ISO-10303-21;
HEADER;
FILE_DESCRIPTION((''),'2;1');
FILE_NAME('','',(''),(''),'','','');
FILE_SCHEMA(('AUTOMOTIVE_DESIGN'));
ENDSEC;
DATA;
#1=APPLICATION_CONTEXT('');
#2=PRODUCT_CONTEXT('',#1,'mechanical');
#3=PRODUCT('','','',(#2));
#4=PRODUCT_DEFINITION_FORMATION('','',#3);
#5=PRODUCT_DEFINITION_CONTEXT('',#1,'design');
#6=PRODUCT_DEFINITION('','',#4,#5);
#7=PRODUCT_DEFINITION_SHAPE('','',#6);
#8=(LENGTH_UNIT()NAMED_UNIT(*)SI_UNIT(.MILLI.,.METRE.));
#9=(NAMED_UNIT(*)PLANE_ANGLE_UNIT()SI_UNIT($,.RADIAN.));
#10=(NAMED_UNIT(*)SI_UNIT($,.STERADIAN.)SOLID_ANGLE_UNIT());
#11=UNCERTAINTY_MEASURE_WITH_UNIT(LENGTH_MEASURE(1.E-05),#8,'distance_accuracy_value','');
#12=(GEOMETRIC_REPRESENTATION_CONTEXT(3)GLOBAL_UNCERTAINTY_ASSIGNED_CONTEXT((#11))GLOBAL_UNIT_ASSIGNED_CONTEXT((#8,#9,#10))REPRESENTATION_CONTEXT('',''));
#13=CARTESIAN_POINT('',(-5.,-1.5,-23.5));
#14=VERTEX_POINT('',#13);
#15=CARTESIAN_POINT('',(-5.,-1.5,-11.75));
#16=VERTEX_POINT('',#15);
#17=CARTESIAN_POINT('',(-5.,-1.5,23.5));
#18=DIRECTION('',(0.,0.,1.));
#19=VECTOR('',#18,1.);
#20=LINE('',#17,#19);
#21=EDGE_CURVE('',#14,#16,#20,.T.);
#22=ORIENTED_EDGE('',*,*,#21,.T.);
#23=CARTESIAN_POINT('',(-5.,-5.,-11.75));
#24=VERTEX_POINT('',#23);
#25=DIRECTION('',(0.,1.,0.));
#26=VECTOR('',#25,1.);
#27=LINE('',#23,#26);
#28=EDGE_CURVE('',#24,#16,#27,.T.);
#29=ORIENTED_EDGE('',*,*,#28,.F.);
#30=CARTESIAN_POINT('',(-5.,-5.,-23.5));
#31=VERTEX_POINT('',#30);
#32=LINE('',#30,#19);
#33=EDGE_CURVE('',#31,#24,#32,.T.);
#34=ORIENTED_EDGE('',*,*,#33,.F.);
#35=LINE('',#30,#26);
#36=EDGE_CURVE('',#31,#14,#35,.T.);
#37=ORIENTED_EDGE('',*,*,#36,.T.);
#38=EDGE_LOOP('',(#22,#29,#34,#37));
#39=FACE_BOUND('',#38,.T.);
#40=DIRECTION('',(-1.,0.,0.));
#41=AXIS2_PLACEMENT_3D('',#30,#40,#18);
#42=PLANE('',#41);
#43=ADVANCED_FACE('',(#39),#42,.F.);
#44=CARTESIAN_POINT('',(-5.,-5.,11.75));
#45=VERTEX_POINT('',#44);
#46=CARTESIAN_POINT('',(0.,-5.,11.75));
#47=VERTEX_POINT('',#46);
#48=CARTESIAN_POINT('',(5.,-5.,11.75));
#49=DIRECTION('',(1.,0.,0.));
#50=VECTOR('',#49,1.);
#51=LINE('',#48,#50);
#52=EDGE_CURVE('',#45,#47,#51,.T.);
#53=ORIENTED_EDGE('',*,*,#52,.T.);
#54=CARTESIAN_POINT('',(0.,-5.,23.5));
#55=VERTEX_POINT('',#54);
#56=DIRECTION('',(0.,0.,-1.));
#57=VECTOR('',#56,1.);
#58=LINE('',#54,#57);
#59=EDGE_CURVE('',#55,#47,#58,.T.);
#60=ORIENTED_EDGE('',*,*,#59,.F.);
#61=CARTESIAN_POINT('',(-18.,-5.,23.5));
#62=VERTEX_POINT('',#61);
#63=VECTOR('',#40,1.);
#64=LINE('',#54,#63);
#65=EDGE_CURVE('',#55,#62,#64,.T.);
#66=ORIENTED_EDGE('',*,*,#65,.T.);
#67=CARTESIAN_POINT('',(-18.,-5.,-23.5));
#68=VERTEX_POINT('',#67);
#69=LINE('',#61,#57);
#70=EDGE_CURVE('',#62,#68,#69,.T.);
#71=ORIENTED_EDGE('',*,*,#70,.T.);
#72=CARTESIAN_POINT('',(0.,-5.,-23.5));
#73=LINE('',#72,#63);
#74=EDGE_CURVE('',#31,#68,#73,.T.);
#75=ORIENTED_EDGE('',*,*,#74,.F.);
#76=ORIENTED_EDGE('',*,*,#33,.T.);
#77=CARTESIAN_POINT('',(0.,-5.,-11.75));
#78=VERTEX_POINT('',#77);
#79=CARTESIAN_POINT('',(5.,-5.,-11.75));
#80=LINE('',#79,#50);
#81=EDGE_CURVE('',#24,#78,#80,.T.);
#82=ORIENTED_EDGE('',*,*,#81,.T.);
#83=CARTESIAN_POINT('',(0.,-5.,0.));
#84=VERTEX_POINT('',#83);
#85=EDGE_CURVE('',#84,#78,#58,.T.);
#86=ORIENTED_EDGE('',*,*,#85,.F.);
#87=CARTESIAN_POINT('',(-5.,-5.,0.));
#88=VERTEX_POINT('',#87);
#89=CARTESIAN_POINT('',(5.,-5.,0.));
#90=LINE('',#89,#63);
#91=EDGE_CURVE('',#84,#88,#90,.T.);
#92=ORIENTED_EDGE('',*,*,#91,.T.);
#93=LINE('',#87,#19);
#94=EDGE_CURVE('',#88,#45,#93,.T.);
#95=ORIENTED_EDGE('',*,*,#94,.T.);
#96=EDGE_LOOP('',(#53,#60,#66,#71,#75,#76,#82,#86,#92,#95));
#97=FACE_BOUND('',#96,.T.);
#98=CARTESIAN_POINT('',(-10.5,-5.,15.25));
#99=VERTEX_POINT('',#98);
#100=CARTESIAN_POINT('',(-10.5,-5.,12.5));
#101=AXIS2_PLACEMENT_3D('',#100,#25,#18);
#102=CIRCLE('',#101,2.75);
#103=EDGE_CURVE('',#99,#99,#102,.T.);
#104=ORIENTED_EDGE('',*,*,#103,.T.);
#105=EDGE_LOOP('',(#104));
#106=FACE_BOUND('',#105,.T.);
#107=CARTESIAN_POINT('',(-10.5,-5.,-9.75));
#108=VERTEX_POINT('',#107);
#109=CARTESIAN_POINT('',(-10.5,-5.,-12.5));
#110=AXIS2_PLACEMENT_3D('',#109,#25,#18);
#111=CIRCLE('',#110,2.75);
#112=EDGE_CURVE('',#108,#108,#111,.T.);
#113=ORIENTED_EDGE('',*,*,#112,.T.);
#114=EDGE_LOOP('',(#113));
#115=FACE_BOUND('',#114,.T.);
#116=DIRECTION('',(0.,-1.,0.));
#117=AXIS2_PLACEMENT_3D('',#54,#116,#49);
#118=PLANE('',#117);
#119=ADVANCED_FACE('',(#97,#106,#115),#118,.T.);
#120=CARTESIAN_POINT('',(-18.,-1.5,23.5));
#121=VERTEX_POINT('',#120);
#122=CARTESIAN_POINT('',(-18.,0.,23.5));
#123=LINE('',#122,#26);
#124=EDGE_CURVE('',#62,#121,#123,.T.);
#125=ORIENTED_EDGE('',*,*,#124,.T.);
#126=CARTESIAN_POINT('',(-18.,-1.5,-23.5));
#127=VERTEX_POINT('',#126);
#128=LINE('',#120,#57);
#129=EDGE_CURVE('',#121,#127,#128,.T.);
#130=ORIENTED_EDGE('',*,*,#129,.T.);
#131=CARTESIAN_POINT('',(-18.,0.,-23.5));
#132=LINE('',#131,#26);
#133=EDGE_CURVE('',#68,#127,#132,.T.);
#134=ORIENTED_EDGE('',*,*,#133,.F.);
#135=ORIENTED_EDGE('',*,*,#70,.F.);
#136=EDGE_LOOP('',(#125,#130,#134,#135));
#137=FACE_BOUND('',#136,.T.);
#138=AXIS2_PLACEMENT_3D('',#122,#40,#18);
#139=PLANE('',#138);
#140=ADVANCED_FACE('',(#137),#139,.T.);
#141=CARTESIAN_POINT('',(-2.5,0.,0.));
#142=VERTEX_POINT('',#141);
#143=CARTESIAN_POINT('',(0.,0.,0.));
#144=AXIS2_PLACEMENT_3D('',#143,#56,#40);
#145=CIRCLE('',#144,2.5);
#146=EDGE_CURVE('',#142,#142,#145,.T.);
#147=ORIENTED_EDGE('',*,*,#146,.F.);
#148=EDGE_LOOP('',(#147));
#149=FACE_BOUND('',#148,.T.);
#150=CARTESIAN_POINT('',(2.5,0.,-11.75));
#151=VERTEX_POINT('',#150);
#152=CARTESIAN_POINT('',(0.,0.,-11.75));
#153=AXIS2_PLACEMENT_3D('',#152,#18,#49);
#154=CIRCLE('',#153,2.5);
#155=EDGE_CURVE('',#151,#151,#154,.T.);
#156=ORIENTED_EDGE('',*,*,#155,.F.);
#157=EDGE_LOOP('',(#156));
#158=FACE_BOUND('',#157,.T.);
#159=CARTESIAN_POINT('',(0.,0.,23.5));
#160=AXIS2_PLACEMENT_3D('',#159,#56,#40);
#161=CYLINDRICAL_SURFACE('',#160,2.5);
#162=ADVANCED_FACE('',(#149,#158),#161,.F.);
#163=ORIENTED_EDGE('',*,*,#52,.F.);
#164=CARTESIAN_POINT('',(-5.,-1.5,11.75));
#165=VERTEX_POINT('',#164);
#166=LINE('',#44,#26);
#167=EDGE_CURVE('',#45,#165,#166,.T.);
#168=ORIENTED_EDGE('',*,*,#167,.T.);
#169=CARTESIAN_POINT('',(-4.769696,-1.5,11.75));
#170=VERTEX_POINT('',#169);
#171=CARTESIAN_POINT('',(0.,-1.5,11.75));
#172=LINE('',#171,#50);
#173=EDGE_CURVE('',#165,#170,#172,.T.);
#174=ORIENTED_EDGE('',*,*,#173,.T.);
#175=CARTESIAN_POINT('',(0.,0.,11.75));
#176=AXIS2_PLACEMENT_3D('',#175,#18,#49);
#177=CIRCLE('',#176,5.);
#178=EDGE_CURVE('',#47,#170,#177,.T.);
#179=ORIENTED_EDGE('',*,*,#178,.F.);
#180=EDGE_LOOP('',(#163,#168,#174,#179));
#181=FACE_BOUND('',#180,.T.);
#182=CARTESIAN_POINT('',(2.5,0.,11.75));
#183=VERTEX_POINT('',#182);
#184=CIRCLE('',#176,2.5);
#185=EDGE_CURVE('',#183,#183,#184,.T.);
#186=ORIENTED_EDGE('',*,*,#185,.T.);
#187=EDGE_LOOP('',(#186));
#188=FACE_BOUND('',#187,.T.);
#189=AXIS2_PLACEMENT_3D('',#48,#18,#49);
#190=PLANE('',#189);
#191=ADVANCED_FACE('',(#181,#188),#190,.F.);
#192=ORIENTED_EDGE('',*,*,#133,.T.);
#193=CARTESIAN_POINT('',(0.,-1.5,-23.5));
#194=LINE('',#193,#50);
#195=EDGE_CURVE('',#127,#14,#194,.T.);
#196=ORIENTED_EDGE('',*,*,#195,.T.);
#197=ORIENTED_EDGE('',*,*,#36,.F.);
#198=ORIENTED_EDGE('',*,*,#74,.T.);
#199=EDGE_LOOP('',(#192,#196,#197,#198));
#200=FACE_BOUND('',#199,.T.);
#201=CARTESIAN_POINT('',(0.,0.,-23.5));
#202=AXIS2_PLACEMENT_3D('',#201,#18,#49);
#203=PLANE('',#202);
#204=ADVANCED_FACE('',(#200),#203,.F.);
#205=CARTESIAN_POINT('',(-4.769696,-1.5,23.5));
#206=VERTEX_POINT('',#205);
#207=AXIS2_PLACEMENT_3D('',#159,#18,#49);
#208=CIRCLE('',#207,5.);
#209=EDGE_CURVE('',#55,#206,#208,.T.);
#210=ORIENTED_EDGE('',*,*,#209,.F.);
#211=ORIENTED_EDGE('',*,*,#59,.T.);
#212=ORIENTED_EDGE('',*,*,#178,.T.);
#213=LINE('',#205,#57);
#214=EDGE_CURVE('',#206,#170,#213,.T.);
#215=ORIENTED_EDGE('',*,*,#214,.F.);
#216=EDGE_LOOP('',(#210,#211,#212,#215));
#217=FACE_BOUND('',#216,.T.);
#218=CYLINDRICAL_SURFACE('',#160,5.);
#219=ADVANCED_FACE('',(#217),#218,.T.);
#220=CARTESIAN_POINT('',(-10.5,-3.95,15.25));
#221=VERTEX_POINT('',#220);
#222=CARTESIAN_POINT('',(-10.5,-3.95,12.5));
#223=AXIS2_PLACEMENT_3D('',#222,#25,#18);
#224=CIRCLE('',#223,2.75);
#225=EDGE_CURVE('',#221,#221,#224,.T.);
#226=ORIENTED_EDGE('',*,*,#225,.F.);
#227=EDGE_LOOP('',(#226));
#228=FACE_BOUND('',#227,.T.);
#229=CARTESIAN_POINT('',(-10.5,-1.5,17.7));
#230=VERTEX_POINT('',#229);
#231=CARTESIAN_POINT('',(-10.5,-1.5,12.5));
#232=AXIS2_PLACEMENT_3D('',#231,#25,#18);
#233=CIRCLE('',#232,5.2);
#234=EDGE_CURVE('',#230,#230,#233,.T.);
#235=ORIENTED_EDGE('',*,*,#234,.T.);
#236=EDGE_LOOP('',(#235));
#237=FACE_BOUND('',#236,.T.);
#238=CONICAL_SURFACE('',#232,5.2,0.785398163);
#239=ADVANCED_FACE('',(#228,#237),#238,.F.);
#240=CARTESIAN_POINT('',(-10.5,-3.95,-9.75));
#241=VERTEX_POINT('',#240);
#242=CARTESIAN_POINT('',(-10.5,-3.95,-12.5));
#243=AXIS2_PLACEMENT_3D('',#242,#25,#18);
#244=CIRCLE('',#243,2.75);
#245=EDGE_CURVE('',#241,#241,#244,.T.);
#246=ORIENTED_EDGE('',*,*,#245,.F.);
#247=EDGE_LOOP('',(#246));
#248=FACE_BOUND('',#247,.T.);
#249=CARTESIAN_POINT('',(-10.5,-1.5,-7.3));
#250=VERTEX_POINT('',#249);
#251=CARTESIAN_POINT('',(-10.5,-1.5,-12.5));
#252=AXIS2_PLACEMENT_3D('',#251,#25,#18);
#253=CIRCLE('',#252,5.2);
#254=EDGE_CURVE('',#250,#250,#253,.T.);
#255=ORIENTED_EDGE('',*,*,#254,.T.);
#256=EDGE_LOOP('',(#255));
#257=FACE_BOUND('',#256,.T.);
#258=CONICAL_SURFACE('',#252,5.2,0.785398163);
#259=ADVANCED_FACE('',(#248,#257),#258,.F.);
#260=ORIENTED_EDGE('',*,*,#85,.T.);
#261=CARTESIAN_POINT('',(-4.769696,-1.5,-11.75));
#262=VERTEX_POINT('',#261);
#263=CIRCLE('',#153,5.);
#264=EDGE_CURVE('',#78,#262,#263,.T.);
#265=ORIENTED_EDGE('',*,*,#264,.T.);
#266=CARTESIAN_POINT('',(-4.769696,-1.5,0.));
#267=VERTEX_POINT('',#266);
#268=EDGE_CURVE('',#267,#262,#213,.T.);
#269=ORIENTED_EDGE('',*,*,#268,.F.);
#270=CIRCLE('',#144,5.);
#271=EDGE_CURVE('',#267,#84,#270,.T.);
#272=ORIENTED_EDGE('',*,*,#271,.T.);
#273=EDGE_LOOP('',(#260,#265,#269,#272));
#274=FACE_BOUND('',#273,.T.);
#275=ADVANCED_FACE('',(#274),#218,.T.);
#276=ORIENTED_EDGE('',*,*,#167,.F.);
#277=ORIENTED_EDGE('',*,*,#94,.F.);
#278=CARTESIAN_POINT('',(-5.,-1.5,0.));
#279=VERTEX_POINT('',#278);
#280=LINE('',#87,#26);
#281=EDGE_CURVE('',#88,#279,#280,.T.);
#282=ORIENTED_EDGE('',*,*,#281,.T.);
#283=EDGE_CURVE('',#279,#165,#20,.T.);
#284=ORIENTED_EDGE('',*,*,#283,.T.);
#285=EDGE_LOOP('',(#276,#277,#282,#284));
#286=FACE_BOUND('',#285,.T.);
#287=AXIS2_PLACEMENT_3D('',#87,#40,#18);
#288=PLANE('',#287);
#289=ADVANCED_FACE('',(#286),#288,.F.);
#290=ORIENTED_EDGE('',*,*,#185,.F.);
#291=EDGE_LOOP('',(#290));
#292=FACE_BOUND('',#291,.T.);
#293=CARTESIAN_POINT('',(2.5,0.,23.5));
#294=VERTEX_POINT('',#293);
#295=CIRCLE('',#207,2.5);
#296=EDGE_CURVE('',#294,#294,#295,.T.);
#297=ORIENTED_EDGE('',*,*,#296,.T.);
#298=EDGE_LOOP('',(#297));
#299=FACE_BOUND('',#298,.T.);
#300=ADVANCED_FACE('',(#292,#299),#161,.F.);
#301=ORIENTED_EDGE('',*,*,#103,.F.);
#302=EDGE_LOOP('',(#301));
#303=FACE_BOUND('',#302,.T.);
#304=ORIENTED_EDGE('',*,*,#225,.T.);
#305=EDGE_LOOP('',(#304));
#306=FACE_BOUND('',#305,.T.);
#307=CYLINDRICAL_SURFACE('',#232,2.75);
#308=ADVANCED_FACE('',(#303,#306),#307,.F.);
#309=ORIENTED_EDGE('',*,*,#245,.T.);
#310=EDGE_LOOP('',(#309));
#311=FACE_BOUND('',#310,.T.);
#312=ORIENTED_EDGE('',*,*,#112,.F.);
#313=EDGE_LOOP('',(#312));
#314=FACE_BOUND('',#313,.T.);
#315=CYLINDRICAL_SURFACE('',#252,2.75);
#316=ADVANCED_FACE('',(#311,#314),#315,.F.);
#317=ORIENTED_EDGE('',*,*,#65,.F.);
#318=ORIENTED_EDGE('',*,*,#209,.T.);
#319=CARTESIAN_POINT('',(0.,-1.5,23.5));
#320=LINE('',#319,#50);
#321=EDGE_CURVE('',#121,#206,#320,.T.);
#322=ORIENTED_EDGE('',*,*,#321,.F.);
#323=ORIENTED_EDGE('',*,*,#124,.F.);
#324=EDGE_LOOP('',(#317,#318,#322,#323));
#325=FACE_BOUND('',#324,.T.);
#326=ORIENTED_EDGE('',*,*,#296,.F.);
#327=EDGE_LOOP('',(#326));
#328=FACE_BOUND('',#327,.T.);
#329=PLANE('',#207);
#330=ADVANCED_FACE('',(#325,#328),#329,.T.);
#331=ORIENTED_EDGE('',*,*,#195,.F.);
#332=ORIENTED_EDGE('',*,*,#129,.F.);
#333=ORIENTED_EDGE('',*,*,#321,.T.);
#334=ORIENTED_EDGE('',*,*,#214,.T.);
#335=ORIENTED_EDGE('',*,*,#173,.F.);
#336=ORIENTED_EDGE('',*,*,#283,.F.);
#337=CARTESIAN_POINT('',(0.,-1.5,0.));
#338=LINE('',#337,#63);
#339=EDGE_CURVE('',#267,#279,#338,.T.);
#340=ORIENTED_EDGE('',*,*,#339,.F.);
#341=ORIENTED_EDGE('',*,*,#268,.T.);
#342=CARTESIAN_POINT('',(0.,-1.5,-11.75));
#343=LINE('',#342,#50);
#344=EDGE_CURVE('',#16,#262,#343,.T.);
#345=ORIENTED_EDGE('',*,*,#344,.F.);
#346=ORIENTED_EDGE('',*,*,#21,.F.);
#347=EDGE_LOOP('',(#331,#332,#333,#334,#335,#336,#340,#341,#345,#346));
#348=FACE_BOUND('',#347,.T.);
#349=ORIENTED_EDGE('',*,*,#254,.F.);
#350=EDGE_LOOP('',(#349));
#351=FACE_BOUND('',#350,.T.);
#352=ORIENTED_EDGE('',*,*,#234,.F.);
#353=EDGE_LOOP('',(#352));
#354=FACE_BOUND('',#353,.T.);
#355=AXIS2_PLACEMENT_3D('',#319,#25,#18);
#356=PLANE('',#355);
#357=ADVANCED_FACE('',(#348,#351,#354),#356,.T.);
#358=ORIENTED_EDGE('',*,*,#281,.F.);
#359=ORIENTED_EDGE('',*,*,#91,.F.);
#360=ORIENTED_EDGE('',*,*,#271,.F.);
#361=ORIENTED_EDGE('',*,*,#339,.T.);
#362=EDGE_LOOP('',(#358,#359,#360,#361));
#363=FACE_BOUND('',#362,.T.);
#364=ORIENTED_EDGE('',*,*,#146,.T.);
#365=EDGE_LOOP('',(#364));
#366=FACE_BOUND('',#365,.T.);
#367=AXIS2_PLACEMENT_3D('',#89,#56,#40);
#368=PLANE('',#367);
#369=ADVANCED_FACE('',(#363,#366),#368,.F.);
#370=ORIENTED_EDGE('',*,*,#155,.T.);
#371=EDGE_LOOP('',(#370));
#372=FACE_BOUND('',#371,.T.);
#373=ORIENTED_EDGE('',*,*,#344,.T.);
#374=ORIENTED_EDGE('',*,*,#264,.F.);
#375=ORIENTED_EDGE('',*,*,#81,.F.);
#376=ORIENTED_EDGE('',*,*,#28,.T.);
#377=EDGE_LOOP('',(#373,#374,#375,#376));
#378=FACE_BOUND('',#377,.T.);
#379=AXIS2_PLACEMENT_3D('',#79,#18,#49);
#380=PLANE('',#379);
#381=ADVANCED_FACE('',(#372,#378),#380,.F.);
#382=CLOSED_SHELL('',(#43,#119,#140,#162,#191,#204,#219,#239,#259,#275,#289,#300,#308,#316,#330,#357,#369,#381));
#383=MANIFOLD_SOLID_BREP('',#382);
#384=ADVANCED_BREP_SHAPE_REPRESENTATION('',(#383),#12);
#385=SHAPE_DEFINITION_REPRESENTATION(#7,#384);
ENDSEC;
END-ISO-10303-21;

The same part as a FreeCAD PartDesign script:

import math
import FreeCAD as App
import Part
import Sketcher
Q = App.Units.Quantity

doc = App.newDocument("Part")
body = doc.addObject("PartDesign::Body", "Body")

sketch1 = body.newObject("Sketcher::SketchObject", "Sketch")
sketch1.AttachmentSupport = (doc.getObject("XY_Plane"), [""])
sketch1.MapMode = "FlatFace"
sketch1.addGeometry(Part.LineSegment(App.Vector(-18, -5, 0), App.Vector(0, -5, 0)), False)
sketch1.addGeometry(Part.ArcOfCircle(Part.Circle(App.Vector(0, 0, 0), App.Vector(0, 0, 1), 5), math.radians(-90), math.radians(197)), False)
sketch1.addGeometry(Part.LineSegment(App.Vector(-4.8, -1.5, 0), App.Vector(-18, -1.5, 0)), False)
sketch1.addGeometry(Part.LineSegment(App.Vector(-18, -1.5, 0), App.Vector(-18, -5, 0)), False)
sketch1.addGeometry(Part.Circle(App.Vector(0, 0, 0), App.Vector(0, 0, 1), 2.5), False)
sketch1.addConstraint(Sketcher.Constraint("Tangent", 0, 2, 1, 1))
sketch1.addConstraint(Sketcher.Constraint("Coincident", 1, 2, 2, 1))
sketch1.addConstraint(Sketcher.Constraint("Coincident", 2, 2, 3, 1))
sketch1.addConstraint(Sketcher.Constraint("Coincident", 3, 2, 0, 1))
sketch1.addConstraint(Sketcher.Constraint("Horizontal", 0))
sketch1.addConstraint(Sketcher.Constraint("Horizontal", 2))
sketch1.addConstraint(Sketcher.Constraint("Vertical", 3))
sketch1.addConstraint(Sketcher.Constraint("Coincident", 1, 3, -1, 1))
sketch1.addConstraint(Sketcher.Constraint("Coincident", 4, 3, -1, 1))
sketch1.addConstraint(Sketcher.Constraint("Diameter", 4, 5.0))
sketch1.addConstraint(Sketcher.Constraint("Radius", 1, 5.0))
sketch1.addConstraint(Sketcher.Constraint("DistanceX", 0, 1, 0, 2, 18.0))
sketch1.addConstraint(Sketcher.Constraint("DistanceY", 3, 2, 3, 1, 3.5))
pad1 = body.newObject("PartDesign::Pad", "Pad")
pad1.Profile = sketch1
pad1.Length = 47
pad1.Midplane = True

sketch2 = body.newObject("Sketcher::SketchObject", "Sketch001")
sketch2.AttachmentSupport = (doc.getObject("YZ_Plane"), [""])
sketch2.MapMode = "FlatFace"
sketch2.AttachmentOffset = App.Placement(App.Vector(0, 0, -10.5), App.Rotation())
sketch2.addGeometry(Part.LineSegment(App.Vector(-5, -12.5, 0), App.Vector(-1.5, -12.5, 0)), False)
sketch2.addGeometry(Part.LineSegment(App.Vector(-1.5, -12.5, 0), App.Vector(-1.5, -7.3, 0)), False)
sketch2.addGeometry(Part.LineSegment(App.Vector(-1.5, -7.3, 0), App.Vector(-4, -9.8, 0)), False)
sketch2.addGeometry(Part.LineSegment(App.Vector(-4, -9.8, 0), App.Vector(-5, -9.8, 0)), False)
sketch2.addGeometry(Part.LineSegment(App.Vector(-5, -9.8, 0), App.Vector(-5, -12.5, 0)), False)
sketch2.addGeometry(Part.LineSegment(App.Vector(-1.5, -12.5, 0), App.Vector(-5, -12.5, 0)), True)
sketch2.addConstraint(Sketcher.Constraint("Coincident", 0, 2, 1, 1))
sketch2.addConstraint(Sketcher.Constraint("Coincident", 1, 2, 2, 1))
sketch2.addConstraint(Sketcher.Constraint("Coincident", 2, 2, 3, 1))
sketch2.addConstraint(Sketcher.Constraint("Coincident", 3, 2, 4, 1))
sketch2.addConstraint(Sketcher.Constraint("Coincident", 4, 2, 0, 1))
sketch2.addConstraint(Sketcher.Constraint("Horizontal", 0))
sketch2.addConstraint(Sketcher.Constraint("Vertical", 1))
sketch2.addConstraint(Sketcher.Constraint("Horizontal", 3))
sketch2.addConstraint(Sketcher.Constraint("Vertical", 4))
sketch2.addConstraint(Sketcher.Constraint("Horizontal", 5))
sketch2.addConstraint(Sketcher.Constraint("Coincident", 5, 1, 0, 2))
sketch2.addConstraint(Sketcher.Constraint("Vertical", 3, 2, 5, 2))
sketch2.addConstraint(Sketcher.Constraint("Angle", 2, Q("-135 deg")))
sketch2.addConstraint(Sketcher.Constraint("DistanceX", 0, 1, 0, 2, 3.5))
sketch2.addConstraint(Sketcher.Constraint("DistanceY", 1, 1, 1, 2, 5.2))
sketch2.addConstraint(Sketcher.Constraint("DistanceX", 3, 2, -1, 1, 5.0))
sketch2.addConstraint(Sketcher.Constraint("DistanceX", 3, 2, 3, 1, 1.05))
sketch2.addConstraint(Sketcher.Constraint("DistanceY", 0, 2, -1, 1, 12.5))
groove = body.newObject("PartDesign::Groove", "Groove")
groove.Profile = sketch2
groove.ReferenceAxis = (sketch2, ["Axis0"])
groove.Angle = 360
doc.recompute()

linearpattern = body.newObject("PartDesign::LinearPattern", "LinearPattern")
linearpattern.Originals = [groove]
linearpattern.Direction = (doc.getObject("Z_Axis"), [""])
linearpattern.Mode = "offset"
linearpattern.Offset = 25
linearpattern.Occurrences = 2
body.Tip = linearpattern

sketch3 = body.newObject("Sketcher::SketchObject", "Sketch002")
sketch3.AttachmentSupport = (doc.getObject("XZ_Plane"), [""])
sketch3.MapMode = "FlatFace"
sketch3.addGeometry(Part.LineSegment(App.Vector(-5, -24, 0), App.Vector(-5, -12, 0)), False)
sketch3.addGeometry(Part.LineSegment(App.Vector(-5, -12, 0), App.Vector(5, -12, 0)), False)
sketch3.addGeometry(Part.LineSegment(App.Vector(5, -12, 0), App.Vector(5, -24, 0)), False)
sketch3.addGeometry(Part.LineSegment(App.Vector(5, -24, 0), App.Vector(-5, -24, 0)), False)
sketch3.addGeometry(Part.LineSegment(App.Vector(-5, 0, 0), App.Vector(-5, 12, 0)), False)
sketch3.addGeometry(Part.LineSegment(App.Vector(-5, 12, 0), App.Vector(5, 12, 0)), False)
sketch3.addGeometry(Part.LineSegment(App.Vector(5, 12, 0), App.Vector(5, 0, 0)), False)
sketch3.addGeometry(Part.LineSegment(App.Vector(5, 0, 0), App.Vector(-5, 0, 0)), False)
sketch3.addConstraint(Sketcher.Constraint("Coincident", 0, 2, 1, 1))
sketch3.addConstraint(Sketcher.Constraint("Coincident", 1, 2, 2, 1))
sketch3.addConstraint(Sketcher.Constraint("Coincident", 2, 2, 3, 1))
sketch3.addConstraint(Sketcher.Constraint("Coincident", 3, 2, 0, 1))
sketch3.addConstraint(Sketcher.Constraint("Coincident", 4, 2, 5, 1))
sketch3.addConstraint(Sketcher.Constraint("Coincident", 5, 2, 6, 1))
sketch3.addConstraint(Sketcher.Constraint("Coincident", 6, 2, 7, 1))
sketch3.addConstraint(Sketcher.Constraint("Coincident", 7, 2, 4, 1))
sketch3.addConstraint(Sketcher.Constraint("Vertical", 0))
sketch3.addConstraint(Sketcher.Constraint("Horizontal", 1))
sketch3.addConstraint(Sketcher.Constraint("Vertical", 2))
sketch3.addConstraint(Sketcher.Constraint("Horizontal", 3))
sketch3.addConstraint(Sketcher.Constraint("Vertical", 4))
sketch3.addConstraint(Sketcher.Constraint("Horizontal", 5))
sketch3.addConstraint(Sketcher.Constraint("Vertical", 6))
sketch3.addConstraint(Sketcher.Constraint("Horizontal", 7))
sketch3.addConstraint(Sketcher.Constraint("Symmetric", 1, 2, 4, 2, -1, 1))
sketch3.addConstraint(Sketcher.Constraint("Symmetric", 6, 2, 7, 2, -1, 1))
sketch3.addConstraint(Sketcher.Constraint("Vertical", 3, 2, 4, 2))
sketch3.addConstraint(Sketcher.Constraint("Equal", 2, 4))
sketch3.addConstraint(Sketcher.Constraint("DistanceX", 1, 1, 1, 2, 10.0))
sketch3.addConstraint(Sketcher.Constraint("DistanceY", 0, 1, 0, 2, 11.75))
pocket1 = body.newObject("PartDesign::Pocket", "Pocket")
pocket1.Profile = sketch3
pocket1.Type = "ThroughAll"
pocket1.Midplane = True

doc.recompute()
